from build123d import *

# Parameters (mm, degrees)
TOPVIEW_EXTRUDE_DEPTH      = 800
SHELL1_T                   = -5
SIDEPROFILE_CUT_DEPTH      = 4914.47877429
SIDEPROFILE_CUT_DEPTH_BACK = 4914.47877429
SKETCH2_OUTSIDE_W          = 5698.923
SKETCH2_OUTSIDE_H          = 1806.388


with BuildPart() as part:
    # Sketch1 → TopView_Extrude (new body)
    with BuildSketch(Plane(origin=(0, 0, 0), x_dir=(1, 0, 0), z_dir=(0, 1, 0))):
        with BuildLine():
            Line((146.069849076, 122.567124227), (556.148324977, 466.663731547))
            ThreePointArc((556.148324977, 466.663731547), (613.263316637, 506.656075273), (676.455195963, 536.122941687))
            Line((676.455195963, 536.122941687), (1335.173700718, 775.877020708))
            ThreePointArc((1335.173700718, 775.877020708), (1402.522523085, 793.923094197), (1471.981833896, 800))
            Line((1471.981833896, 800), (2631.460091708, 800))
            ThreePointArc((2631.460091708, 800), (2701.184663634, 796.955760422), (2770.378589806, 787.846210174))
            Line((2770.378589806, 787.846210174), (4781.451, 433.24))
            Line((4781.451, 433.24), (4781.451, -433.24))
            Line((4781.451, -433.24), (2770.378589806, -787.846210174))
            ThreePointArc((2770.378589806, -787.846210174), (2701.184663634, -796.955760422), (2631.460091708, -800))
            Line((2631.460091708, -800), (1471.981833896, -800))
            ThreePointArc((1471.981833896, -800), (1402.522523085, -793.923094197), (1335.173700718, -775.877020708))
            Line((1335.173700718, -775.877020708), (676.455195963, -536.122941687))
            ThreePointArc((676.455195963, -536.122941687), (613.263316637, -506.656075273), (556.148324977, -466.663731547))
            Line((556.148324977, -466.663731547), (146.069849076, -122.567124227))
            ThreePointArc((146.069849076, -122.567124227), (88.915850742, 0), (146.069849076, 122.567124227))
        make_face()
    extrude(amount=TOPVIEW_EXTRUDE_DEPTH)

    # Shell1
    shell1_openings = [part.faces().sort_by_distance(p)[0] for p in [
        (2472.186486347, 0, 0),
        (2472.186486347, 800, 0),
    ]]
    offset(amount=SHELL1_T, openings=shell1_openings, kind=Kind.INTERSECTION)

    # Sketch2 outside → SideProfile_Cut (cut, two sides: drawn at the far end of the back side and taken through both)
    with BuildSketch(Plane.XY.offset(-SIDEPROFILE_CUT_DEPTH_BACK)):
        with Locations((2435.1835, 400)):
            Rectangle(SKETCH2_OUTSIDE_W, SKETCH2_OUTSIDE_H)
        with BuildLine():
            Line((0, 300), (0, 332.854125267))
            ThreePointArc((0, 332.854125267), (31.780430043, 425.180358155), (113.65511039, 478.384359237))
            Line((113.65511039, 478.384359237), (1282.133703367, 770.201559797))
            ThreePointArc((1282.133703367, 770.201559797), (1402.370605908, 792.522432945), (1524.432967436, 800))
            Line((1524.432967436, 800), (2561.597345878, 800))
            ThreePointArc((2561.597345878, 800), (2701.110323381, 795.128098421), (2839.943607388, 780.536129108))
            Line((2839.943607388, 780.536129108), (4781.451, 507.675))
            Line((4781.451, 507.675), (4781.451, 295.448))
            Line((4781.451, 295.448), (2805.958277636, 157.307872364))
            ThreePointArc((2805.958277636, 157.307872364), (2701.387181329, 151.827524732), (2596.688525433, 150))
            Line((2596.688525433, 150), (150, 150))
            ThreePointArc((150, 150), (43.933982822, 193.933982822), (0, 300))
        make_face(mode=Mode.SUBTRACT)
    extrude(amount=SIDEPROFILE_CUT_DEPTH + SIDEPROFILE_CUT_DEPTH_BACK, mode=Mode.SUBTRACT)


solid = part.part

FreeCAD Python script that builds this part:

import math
import FreeCAD as App
import Part
import Sketcher

V = App.Vector


def faces_at(feature, points):
    """Names of the faces that lie closest to the given points."""
    faces = feature.Shape.Faces
    near = lambda p: min(range(len(faces)), key=lambda i: faces[i].distToShape(Part.Vertex(*p))[0])
    return sorted({f"Face{near(p) + 1}" for p in points})

doc = App.newDocument("Part")
body = doc.addObject("PartDesign::Body", "Body")

# Sketch on XZ plane
sketch1 = body.newObject("Sketcher::SketchObject", "Sketch")
sketch1.AttachmentSupport = (doc.getObject("XZ_Plane"), [""])
sketch1.MapMode = "FlatFace"
sketch1.addGeometry(Part.LineSegment(V(556.148325, -466.663732, 0), V(146.069849, -122.567124, 0)), False)
sketch1.addGeometry(Part.ArcOfCircle(Part.Circle(V(248.915851, 0, 0), V(0, 0, 1), 160), math.radians(129.999993), math.radians(230.000007)), False)
sketch1.addGeometry(Part.LineSegment(V(146.069849, 122.567124, 0), V(556.148325, 466.663732, 0)), False)
sketch1.addGeometry(Part.ArcOfCircle(Part.Circle(V(813.263329, 160.245921, 0), V(0, 0, 1), 400), math.radians(110.000012), math.radians(129.999993)), False)
sketch1.addGeometry(Part.LineSegment(V(676.455196, 536.122942, 0), V(1335.173701, 775.877021, 0)), False)
sketch1.addGeometry(Part.ArcOfCircle(Part.Circle(V(1471.981834, 400, 0), V(0, 0, 1), 400), math.radians(90), math.radians(110.000012)), False)
sketch1.addGeometry(Part.LineSegment(V(1471.981834, 800, 0), V(2631.460092, 800, 0)), False)
sketch1.addGeometry(Part.ArcOfCircle(Part.Circle(V(2631.460092, 0, 0), V(0, 0, 1), 800), math.radians(80.000003), math.radians(90)), False)
sketch1.addGeometry(Part.LineSegment(V(2770.37859, 787.84621, 0), V(4781.451, 433.24, 0)), False)
sketch1.addGeometry(Part.LineSegment(V(4781.451, 433.24, 0), V(4781.451, -433.24, 0)), False)
sketch1.addGeometry(Part.LineSegment(V(4781.451, -433.24, 0), V(2770.37859, -787.84621, 0)), False)
sketch1.addGeometry(Part.ArcOfCircle(Part.Circle(V(2631.460092, 0, 0), V(0, 0, 1), 800), math.radians(-90), math.radians(-80.000003)), False)
sketch1.addGeometry(Part.LineSegment(V(2631.460092, -800, 0), V(1471.981834, -800, 0)), False)
sketch1.addGeometry(Part.ArcOfCircle(Part.Circle(V(1471.981834, -400, 0), V(0, 0, 1), 400), math.radians(-110.000012), math.radians(-90)), False)
sketch1.addGeometry(Part.LineSegment(V(1335.173701, -775.877021, 0), V(676.455196, -536.122942, 0)), False)
sketch1.addGeometry(Part.ArcOfCircle(Part.Circle(V(813.263329, -160.245921, 0), V(0, 0, 1), 400), math.radians(-129.999993), math.radians(-110.000012)), False)
sketch1.addConstraint(Sketcher.Constraint("Coincident", 0, 2, 1, 2))
sketch1.addConstraint(Sketcher.Constraint("Coincident", 1, 1, 2, 1))
sketch1.addConstraint(Sketcher.Constraint("Coincident", 2, 2, 3, 2))
sketch1.addConstraint(Sketcher.Constraint("Coincident", 3, 1, 4, 1))
sketch1.addConstraint(Sketcher.Constraint("Coincident", 4, 2, 5, 2))
sketch1.addConstraint(Sketcher.Constraint("Coincident", 5, 1, 6, 1))
sketch1.addConstraint(Sketcher.Constraint("Coincident", 6, 2, 7, 2))
sketch1.addConstraint(Sketcher.Constraint("Coincident", 7, 1, 8, 1))
sketch1.addConstraint(Sketcher.Constraint("Coincident", 8, 2, 9, 1))
sketch1.addConstraint(Sketcher.Constraint("Coincident", 9, 2, 10, 1))
sketch1.addConstraint(Sketcher.Constraint("Coincident", 10, 2, 11, 2))
sketch1.addConstraint(Sketcher.Constraint("Coincident", 11, 1, 12, 1))
sketch1.addConstraint(Sketcher.Constraint("Coincident", 12, 2, 13, 2))
sketch1.addConstraint(Sketcher.Constraint("Coincident", 13, 1, 14, 1))
sketch1.addConstraint(Sketcher.Constraint("Coincident", 14, 2, 15, 2))
sketch1.addConstraint(Sketcher.Constraint("Coincident", 15, 1, 0, 1))
sketch1.addConstraint(Sketcher.Constraint("Horizontal", 6))
sketch1.addConstraint(Sketcher.Constraint("Vertical", 9))
sketch1.addConstraint(Sketcher.Constraint("Horizontal", 12))
sketch1.addConstraint(Sketcher.Constraint("Coincident", 11, 3, 7, 3))
sketch1.addConstraint(Sketcher.Constraint("PointOnObject", 1, 3, -1))
sketch1.addConstraint(Sketcher.Constraint("PointOnObject", 7, 3, -1))
sketch1.addConstraint(Sketcher.Constraint("Radius", 1, 160.0))
sketch1.addConstraint(Sketcher.Constraint("Radius", 3, 400.0))
sketch1.addConstraint(Sketcher.Constraint("Radius", 5, 400.0))
sketch1.addConstraint(Sketcher.Constraint("Radius", 7, 800.0))
sketch1.addConstraint(Sketcher.Constraint("Radius", 11, 800.0))
sketch1.addConstraint(Sketcher.Constraint("Radius", 13, 400.0))
sketch1.addConstraint(Sketcher.Constraint("Radius", 15, 400.0))
sketch1.addConstraint(Sketcher.Constraint("DistanceY", 9, 2, 9, 1, 866.48))
sketch1.addConstraint(Sketcher.Constraint("DistanceY", -1, 1, 8, 2, 433.24))
sketch1.addConstraint(Sketcher.Constraint("DistanceX", -1, 1, 8, 2, 4781.451))
sketch1.addConstraint(Sketcher.Constraint("DistanceX", 0, 2, 1, 3, 102.846002))
sketch1.addConstraint(Sketcher.Constraint("DistanceX", 1, 1, 1, 3, 102.846002))
sketch1.addConstraint(Sketcher.Constraint("DistanceX", -1, 1, 4, 2, 1335.173701))
sketch1.addConstraint(Sketcher.Constraint("DistanceX", -1, 1, 13, 1, 1335.173701))
sketch1.addConstraint(Sketcher.Constraint("DistanceY", 3, 3, 4, 2, 615.6311))
sketch1.addConstraint(Sketcher.Constraint("DistanceX", 11, 3, 10, 2, 138.918498))
sketch1.addConstraint(Sketcher.Constraint("DistanceX", 6, 2, 10, 2, 138.918498))
sketch1.addConstraint(Sketcher.Constraint("DistanceY", 13, 1, 15, 3, 615.6311))
sketch1.addConstraint(Sketcher.Constraint("DistanceX", 6, 1, 6, 2, 1159.478258))
sketch1.addConstraint(Sketcher.Constraint("DistanceX", 12, 2, 12, 1, 1159.478258))
sketch1.addConstraint(Sketcher.Constraint("DistanceX", -1, 1, 1, 3, 248.915851))
sketch1.addConstraint(Sketcher.Constraint("DistanceX", -1, 1, 3, 3, 813.263329))
sketch1.addConstraint(Sketcher.Constraint("DistanceY", -1, 1, 3, 3, 160.245921))
sketch1.addConstraint(Sketcher.Constraint("DistanceX", -1, 1, 7, 3, 2631.460092))
sketch1.addConstraint(Sketcher.Constraint("DistanceX", -1, 1, 15, 3, 813.263329))
sketch1.addConstraint(Sketcher.Constraint("DistanceY", 15, 3, -1, 1, 160.245921))
sketch1.addConstraint(Sketcher.Constraint("DistanceY", -1, 1, 2, 2, 466.663732))
sketch1.addConstraint(Sketcher.Constraint("DistanceY", -1, 1, 3, 1, 536.122942))
sketch1.addConstraint(Sketcher.Constraint("DistanceY", 14, 2, -1, 1, 536.122942))
sketch1.addConstraint(Sketcher.Constraint("DistanceY", 15, 1, -1, 1, 466.663732))
sketch1.addConstraint(Sketcher.Constraint("Distance", 8, 2042.096424))
sketch1.addConstraint(Sketcher.Constraint("DistanceX", -1, 1, 12, 2, 1471.981834))
pad1 = body.newObject("PartDesign::Pad", "Pad")
pad1.Profile = sketch1
pad1.Length = 800
pad1.Reversed = True
doc.recompute()

thickness = body.newObject("PartDesign::Thickness", "Thickness")
thickness.Base = (pad1, faces_at(pad1, [(2435.183, 0, 0), (2435.183, 800, 0)]))
thickness.Value = 5
thickness.Reversed = True
thickness.Join = "Intersection"

# Sketch on XY plane
sketch2 = body.newObject("Sketcher::SketchObject", "Sketch001")
sketch2.AttachmentSupport = (doc.getObject("XY_Plane"), [""])
sketch2.MapMode = "FlatFace"
sketch2.addGeometry(Part.LineSegment(V(-414.278, 1303.194, 0), V(-414.278, -503.194, 0)), False)
sketch2.addGeometry(Part.LineSegment(V(-414.278, -503.194, 0), V(5284.645, -503.194, 0)), False)
sketch2.addGeometry(Part.LineSegment(V(5284.645, -503.194, 0), V(5284.645, 1303.194, 0)), False)
sketch2.addGeometry(Part.LineSegment(V(5284.645, 1303.194, 0), V(-414.278, 1303.194, 0)), False)
sketch2.addGeometry(Part.ArcOfCircle(Part.Circle(V(150, 300, 0), V(0, 0, 1), 150), math.radians(180), math.radians(270)), False)
sketch2.addGeometry(Part.LineSegment(V(0, 300, 0), V(0, 332.854125, 0)), False)
sketch2.addGeometry(Part.ArcOfCircle(Part.Circle(V(150, 332.854125, 0), V(0, 0, 1), 150), math.radians(104.022285), math.radians(180)), False)
sketch2.addGeometry(Part.LineSegment(V(113.65511, 478.384359, 0), V(1282.133703, 770.20156, 0)), False)
sketch2.addGeometry(Part.ArcOfCircle(Part.Circle(V(1524.432967, -200, 0), V(0, 0, 1), 1000), math.radians(90), math.radians(104.022285)), False)
sketch2.addGeometry(Part.LineSegment(V(1524.432967, 800, 0), V(2561.597346, 800, 0)), False)
sketch2.addGeometry(Part.ArcOfCircle(Part.Circle(V(2561.597346, -1200, 0), V(0, 0, 1), 2000), math.radians(81.999998), math.radians(90)), False)
sketch2.addGeometry(Part.LineSegment(V(2839.943607, 780.536129, 0), V(4781.451, 507.675, 0)), False)
sketch2.addGeometry(Part.LineSegment(V(4781.451, 507.675, 0), V(4781.451, 295.448, 0)), False)
sketch2.addGeometry(Part.LineSegment(V(4781.451, 295.448, 0), V(2805.958278, 157.307872, 0)), False)
sketch2.addGeometry(Part.ArcOfCircle(Part.Circle(V(2596.688525, 3150, 0), V(0, 0, 1), 3000), math.radians(-90), math.radians(-85.999994)), False)
sketch2.addGeometry(Part.LineSegment(V(2596.688525, 150, 0), V(150, 150, 0)), False)
sketch2.addConstraint(Sketcher.Constraint("Coincident", 0, 2, 1, 1))
sketch2.addConstraint(Sketcher.Constraint("Coincident", 1, 2, 2, 1))
sketch2.addConstraint(Sketcher.Constraint("Coincident", 2, 2, 3, 1))
sketch2.addConstraint(Sketcher.Constraint("Coincident", 3, 2, 0, 1))
sketch2.addConstraint(Sketcher.Constraint("Coincident", 4, 1, 5, 1))
sketch2.addConstraint(Sketcher.Constraint("Coincident", 5, 2, 6, 2))
sketch2.addConstraint(Sketcher.Constraint("Coincident", 6, 1, 7, 1))
sketch2.addConstraint(Sketcher.Constraint("Coincident", 7, 2, 8, 2))
sketch2.addConstraint(Sketcher.Constraint("Coincident", 8, 1, 9, 1))
sketch2.addConstraint(Sketcher.Constraint("Coincident", 9, 2, 10, 2))
sketch2.addConstraint(Sketcher.Constraint("Coincident", 10, 1, 11, 1))
sketch2.addConstraint(Sketcher.Constraint("Coincident", 11, 2, 12, 1))
sketch2.addConstraint(Sketcher.Constraint("Coincident", 12, 2, 13, 1))
sketch2.addConstraint(Sketcher.Constraint("Coincident", 13, 2, 14, 2))
sketch2.addConstraint(Sketcher.Constraint("Coincident", 14, 1, 15, 1))
sketch2.addConstraint(Sketcher.Constraint("Coincident", 15, 2, 4, 2))
sketch2.addConstraint(Sketcher.Constraint("Vertical", 0))
sketch2.addConstraint(Sketcher.Constraint("Horizontal", 1))
sketch2.addConstraint(Sketcher.Constraint("Vertical", 2))
sketch2.addConstraint(Sketcher.Constraint("Horizontal", 3))
sketch2.addConstraint(Sketcher.Constraint("Vertical", 5))
sketch2.addConstraint(Sketcher.Constraint("Horizontal", 9))
sketch2.addConstraint(Sketcher.Constraint("Vertical", 12))
sketch2.addConstraint(Sketcher.Constraint("Horizontal", 15))
sketch2.addConstraint(Sketcher.Constraint("PointOnObject", 4, 1, -2))
sketch2.addConstraint(Sketcher.Constraint("Radius", 4, 150.0))
sketch2.addConstraint(Sketcher.Constraint("Radius", 6, 150.0))
sketch2.addConstraint(Sketcher.Constraint("Radius", 8, 1000.0))
sketch2.addConstraint(Sketcher.Constraint("Radius", 10, 2000.0))
sketch2.addConstraint(Sketcher.Constraint("Radius", 14, 3000.0))
sketch2.addConstraint(Sketcher.Constraint("DistanceY", -1, 1, 4, 3, 300.0))
sketch2.addConstraint(Sketcher.Constraint("DistanceY", 8, 3, -1, 1, 200.0))
sketch2.addConstraint(Sketcher.Constraint("DistanceY", -1, 1, 4, 1, 300.0))
sketch2.addConstraint(Sketcher.Constraint("DistanceX", -1, 1, 15, 2, 150.0))
sketch2.addConstraint(Sketcher.Constraint("DistanceX", 1, 1, 1, 2, 5698.923))
sketch2.addConstraint(Sketcher.Constraint("DistanceY", 0, 2, 0, 1, 1806.388))
sketch2.addConstraint(Sketcher.Constraint("DistanceY", 12, 2, 12, 1, 212.227))
sketch2.addConstraint(Sketcher.Constraint("DistanceX", 0, 2, -1, 1, 414.278))
sketch2.addConstraint(Sketcher.Constraint("DistanceY", 0, 2, -1, 1, 503.194))
sketch2.addConstraint(Sketcher.Constraint("DistanceX", -1, 1, 11, 2, 4781.451))
sketch2.addConstraint(Sketcher.Constraint("DistanceY", -1, 1, 11, 2, 507.675))
sketch2.addConstraint(Sketcher.Constraint("DistanceX", 9, 1, 9, 2, 1037.164378))
sketch2.addConstraint(Sketcher.Constraint("DistanceY", 6, 1, 7, 2, 291.817201))
sketch2.addConstraint(Sketcher.Constraint("Distance", 13, 1980.31669))
sketch2.addConstraint(Sketcher.Constraint("DistanceX", 15, 2, 15, 1, 2446.688525))
sketch2.addConstraint(Sketcher.Constraint("DistanceY", 5, 1, 5, 2, 32.854125))
sketch2.addConstraint(Sketcher.Constraint("DistanceX", -1, 1, 6, 1, 113.65511))
sketch2.addConstraint(Sketcher.Constraint("DistanceY", -1, 1, 6, 1, 478.384359))
sketch2.addConstraint(Sketcher.Constraint("DistanceX", 8, 3, 10, 3, 1037.164378))
sketch2.addConstraint(Sketcher.Constraint("DistanceX", 8, 3, 14, 3, 1072.255558))
sketch2.addConstraint(Sketcher.Constraint("DistanceX", 8, 3, 9, 2, 1037.164378))
sketch2.addConstraint(Sketcher.Constraint("DistanceX", 9, 2, 13, 2, 244.360932))
sketch2.addConstraint(Sketcher.Constraint("Distance", 11, 1960.587706))
pocket1 = body.newObject("PartDesign::Pocket", "Pocket")
pocket1.Profile = sketch2
pocket1.Type = "ThroughAll"
pocket1.Midplane = True

doc.recompute()
